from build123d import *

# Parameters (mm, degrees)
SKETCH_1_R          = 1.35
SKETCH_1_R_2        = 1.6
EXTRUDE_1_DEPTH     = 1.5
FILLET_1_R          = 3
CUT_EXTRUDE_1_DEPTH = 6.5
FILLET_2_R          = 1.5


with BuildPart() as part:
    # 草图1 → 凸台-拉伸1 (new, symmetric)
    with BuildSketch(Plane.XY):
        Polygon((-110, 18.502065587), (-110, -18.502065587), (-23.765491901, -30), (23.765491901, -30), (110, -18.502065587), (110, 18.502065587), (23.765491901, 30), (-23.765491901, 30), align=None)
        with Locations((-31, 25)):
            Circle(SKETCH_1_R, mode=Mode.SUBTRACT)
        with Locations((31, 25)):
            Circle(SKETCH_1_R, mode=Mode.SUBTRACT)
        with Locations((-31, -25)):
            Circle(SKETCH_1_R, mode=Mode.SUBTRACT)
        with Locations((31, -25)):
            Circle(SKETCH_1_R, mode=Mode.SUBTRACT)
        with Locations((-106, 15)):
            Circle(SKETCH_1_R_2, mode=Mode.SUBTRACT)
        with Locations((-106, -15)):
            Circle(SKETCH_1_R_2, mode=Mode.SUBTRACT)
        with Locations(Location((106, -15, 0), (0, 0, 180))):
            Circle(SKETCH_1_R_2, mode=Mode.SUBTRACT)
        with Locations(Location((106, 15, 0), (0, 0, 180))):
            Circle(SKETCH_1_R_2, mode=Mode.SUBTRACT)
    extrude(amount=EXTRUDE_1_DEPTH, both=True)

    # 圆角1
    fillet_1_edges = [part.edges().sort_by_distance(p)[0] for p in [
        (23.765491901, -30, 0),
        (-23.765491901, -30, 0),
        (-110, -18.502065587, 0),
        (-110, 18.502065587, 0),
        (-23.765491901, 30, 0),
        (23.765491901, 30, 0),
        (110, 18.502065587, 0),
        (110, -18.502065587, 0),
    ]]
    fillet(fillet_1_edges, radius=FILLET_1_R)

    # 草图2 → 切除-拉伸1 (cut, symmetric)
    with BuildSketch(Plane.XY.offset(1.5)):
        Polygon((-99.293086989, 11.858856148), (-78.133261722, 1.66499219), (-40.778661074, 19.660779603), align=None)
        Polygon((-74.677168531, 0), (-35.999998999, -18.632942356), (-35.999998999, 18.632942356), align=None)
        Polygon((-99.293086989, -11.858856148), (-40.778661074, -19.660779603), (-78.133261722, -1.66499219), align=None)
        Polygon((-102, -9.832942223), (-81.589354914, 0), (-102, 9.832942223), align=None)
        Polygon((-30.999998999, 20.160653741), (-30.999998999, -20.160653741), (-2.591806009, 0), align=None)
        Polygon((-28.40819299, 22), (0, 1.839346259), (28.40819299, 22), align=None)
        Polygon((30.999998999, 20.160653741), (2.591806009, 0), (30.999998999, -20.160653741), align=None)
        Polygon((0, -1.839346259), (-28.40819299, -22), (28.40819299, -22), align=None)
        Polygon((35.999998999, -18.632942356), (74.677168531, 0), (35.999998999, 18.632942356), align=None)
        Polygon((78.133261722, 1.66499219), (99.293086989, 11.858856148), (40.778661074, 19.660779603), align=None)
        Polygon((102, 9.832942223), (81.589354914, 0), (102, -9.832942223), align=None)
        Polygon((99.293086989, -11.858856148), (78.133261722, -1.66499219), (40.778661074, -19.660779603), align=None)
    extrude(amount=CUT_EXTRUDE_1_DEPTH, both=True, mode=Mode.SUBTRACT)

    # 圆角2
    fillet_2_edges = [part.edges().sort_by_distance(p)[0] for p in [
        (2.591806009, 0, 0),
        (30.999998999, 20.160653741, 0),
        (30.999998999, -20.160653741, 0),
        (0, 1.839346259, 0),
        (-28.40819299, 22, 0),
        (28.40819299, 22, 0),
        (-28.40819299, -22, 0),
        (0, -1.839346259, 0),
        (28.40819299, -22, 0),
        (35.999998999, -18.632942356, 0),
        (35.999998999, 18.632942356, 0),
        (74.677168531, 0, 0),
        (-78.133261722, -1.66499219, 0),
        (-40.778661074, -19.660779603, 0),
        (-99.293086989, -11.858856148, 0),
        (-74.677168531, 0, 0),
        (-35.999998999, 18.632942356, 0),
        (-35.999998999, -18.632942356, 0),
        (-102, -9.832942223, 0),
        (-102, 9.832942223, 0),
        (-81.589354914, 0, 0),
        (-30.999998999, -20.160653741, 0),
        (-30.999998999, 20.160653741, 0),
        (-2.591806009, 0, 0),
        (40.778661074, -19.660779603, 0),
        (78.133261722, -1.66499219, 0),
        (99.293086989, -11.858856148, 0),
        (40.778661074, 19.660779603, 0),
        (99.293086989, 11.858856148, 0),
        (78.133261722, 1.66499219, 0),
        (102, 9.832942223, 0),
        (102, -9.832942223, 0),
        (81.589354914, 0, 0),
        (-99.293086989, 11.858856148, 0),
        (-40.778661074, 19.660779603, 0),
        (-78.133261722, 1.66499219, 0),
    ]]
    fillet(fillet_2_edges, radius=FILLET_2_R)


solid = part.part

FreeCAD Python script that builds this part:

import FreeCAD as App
import Part
import Sketcher
Q = App.Units.Quantity


def edges_at(feature, points):
    """Names of the edges that pass closest to the given points."""
    edges = feature.Shape.Edges
    near = lambda p: min(range(len(edges)), key=lambda i: edges[i].distToShape(Part.Vertex(*p))[0])
    return sorted({f"Edge{near(p) + 1}" for p in points})

doc = App.newDocument("Part")
body = doc.addObject("PartDesign::Body", "Body")

# Sketch on XY plane
sketch1 = body.newObject("Sketcher::SketchObject", "Sketch")
sketch1.AttachmentSupport = (doc.getObject("XY_Plane"), [""])
sketch1.MapMode = "FlatFace"
sketch1.addGeometry(Part.LineSegment(App.Vector(-110, 18.502066, 0), App.Vector(-110, -18.502066, 0)), False)
sketch1.addGeometry(Part.LineSegment(App.Vector(-110, -18.502066, 0), App.Vector(-23.765492, -30, 0)), False)
sketch1.addGeometry(Part.LineSegment(App.Vector(-23.765492, -30, 0), App.Vector(23.765492, -30, 0)), False)
sketch1.addGeometry(Part.LineSegment(App.Vector(23.765492, -30, 0), App.Vector(110, -18.502066, 0)), False)
sketch1.addGeometry(Part.LineSegment(App.Vector(110, -18.502066, 0), App.Vector(110, 18.502066, 0)), False)
sketch1.addGeometry(Part.LineSegment(App.Vector(110, 18.502066, 0), App.Vector(23.765492, 30, 0)), False)
sketch1.addGeometry(Part.LineSegment(App.Vector(23.765492, 30, 0), App.Vector(-23.765492, 30, 0)), False)
sketch1.addGeometry(Part.LineSegment(App.Vector(-23.765492, 30, 0), App.Vector(-110, 18.502066, 0)), False)
sketch1.addGeometry(Part.Circle(App.Vector(-106, -15, 0), App.Vector(0, 0, 1), 1.6), False)
sketch1.addGeometry(Part.Circle(App.Vector(-31, -25, 0), App.Vector(0, 0, 1), 1.35), False)
sketch1.addGeometry(Part.Circle(App.Vector(31, -25, 0), App.Vector(0, 0, 1), 1.35), False)
sketch1.addGeometry(Part.Circle(App.Vector(106, -15, 0), App.Vector(0, 0, 1), 1.6), False)
sketch1.addGeometry(Part.Circle(App.Vector(-106, 15, 0), App.Vector(0, 0, 1), 1.6), False)
sketch1.addGeometry(Part.Circle(App.Vector(-31, 25, 0), App.Vector(0, 0, 1), 1.35), False)
sketch1.addGeometry(Part.Circle(App.Vector(31, 25, 0), App.Vector(0, 0, 1), 1.35), False)
sketch1.addGeometry(Part.Circle(App.Vector(106, 15, 0), App.Vector(0, 0, 1), 1.6), False)
sketch1.addConstraint(Sketcher.Constraint("Coincident", 0, 2, 1, 1))
sketch1.addConstraint(Sketcher.Constraint("Coincident", 1, 2, 2, 1))
sketch1.addConstraint(Sketcher.Constraint("Coincident", 2, 2, 3, 1))
sketch1.addConstraint(Sketcher.Constraint("Coincident", 3, 2, 4, 1))
sketch1.addConstraint(Sketcher.Constraint("Coincident", 4, 2, 5, 1))
sketch1.addConstraint(Sketcher.Constraint("Coincident", 5, 2, 6, 1))
sketch1.addConstraint(Sketcher.Constraint("Coincident", 6, 2, 7, 1))
sketch1.addConstraint(Sketcher.Constraint("Coincident", 7, 2, 0, 1))
sketch1.addConstraint(Sketcher.Constraint("Vertical", 0))
sketch1.addConstraint(Sketcher.Constraint("Horizontal", 2))
sketch1.addConstraint(Sketcher.Constraint("Vertical", 4))
sketch1.addConstraint(Sketcher.Constraint("Horizontal", 6))
sketch1.addConstraint(Sketcher.Constraint("Equal", 9, 10))
sketch1.addConstraint(Sketcher.Constraint("Equal", 8, 11))
sketch1.addConstraint(Sketcher.Constraint("Equal", 11, 12))
sketch1.addConstraint(Sketcher.Constraint("Equal", 10, 13))
sketch1.addConstraint(Sketcher.Constraint("Equal", 13, 14))
sketch1.addConstraint(Sketcher.Constraint("Equal", 12, 15))
sketch1.addConstraint(Sketcher.Constraint("Symmetric", 11, 3, 12, 3, -1, 1))
sketch1.addConstraint(Sketcher.Constraint("Symmetric", 10, 3, 13, 3, -1, 1))
sketch1.addConstraint(Sketcher.Constraint("Symmetric", 9, 3, 14, 3, -1, 1))
sketch1.addConstraint(Sketcher.Constraint("Symmetric", 8, 3, 15, 3, -1, 1))
sketch1.addConstraint(Sketcher.Constraint("Symmetric", 0, 2, 4, 2, -1, 1))
sketch1.addConstraint(Sketcher.Constraint("Symmetric", 1, 2, 5, 2, -1, 1))
sketch1.addConstraint(Sketcher.Constraint("Symmetric", 9, 3, 10, 3, -2))
sketch1.addConstraint(Sketcher.Constraint("Symmetric", 8, 3, 11, 3, -2))
sketch1.addConstraint(Sketcher.Constraint("Parallel", 3, 7))
sketch1.addConstraint(Sketcher.Constraint("Horizontal", 0, 2, 3, 2))
sketch1.addConstraint(Sketcher.Constraint("Horizontal", 4, 2, 7, 2))
sketch1.addConstraint(Sketcher.Constraint("Vertical", 2, 2, 5, 2))
sketch1.addConstraint(Sketcher.Constraint("Diameter", 8, Q("3.2 mm")))
sketch1.addConstraint(Sketcher.Constraint("Diameter", 9, Q("2.7 mm")))
sketch1.addConstraint(Sketcher.Constraint("DistanceX", 8, 3, -1, 1, Q("106 mm")))
sketch1.addConstraint(Sketcher.Constraint("DistanceY", 8, 3, -1, 1, Q("15 mm")))
sketch1.addConstraint(Sketcher.Constraint("DistanceX", 9, 3, -1, 1, Q("31 mm")))
sketch1.addConstraint(Sketcher.Constraint("DistanceY", 9, 3, -1, 1, Q("25 mm")))
sketch1.addConstraint(Sketcher.Constraint("DistanceX", 0, 2, -1, 1, Q("110 mm")))
sketch1.addConstraint(Sketcher.Constraint("DistanceY", 1, 2, -1, 1, Q("30 mm")))
sketch1.addConstraint(Sketcher.Constraint("DistanceY", 0, 2, 0, 1, Q("37.004131 mm")))
sketch1.addConstraint(Sketcher.Constraint("Distance", 1, Q("86.99766 mm")))
pad1 = body.newObject("PartDesign::Pad", "Pad")
pad1.Profile = sketch1
pad1.Length = 3
pad1.Midplane = True
doc.recompute()

fillet = body.newObject("PartDesign::Fillet", "Fillet")
fillet.Base = (pad1, edges_at(pad1, [
    (23.765, -30, 0),
    (-23.765, -30, 0),
    (-110, -18.502, 0),
    (-110, 18.502, 0),
    (-23.765, 30, 0),
    (23.765, 30, 0),
    (110, 18.502, 0),
    (110, -18.502, 0),
]))
fillet.Radius = 3

# Sketch on XY plane
sketch2 = body.newObject("Sketcher::SketchObject", "Sketch001")
sketch2.AttachmentSupport = (doc.getObject("XY_Plane"), [""])
sketch2.MapMode = "FlatFace"
sketch2.AttachmentOffset = App.Placement(App.Vector(0, 0, 1.5), App.Rotation())
sketch2.addGeometry(Part.LineSegment(App.Vector(-99.293087, 11.858856, 0), App.Vector(-78.133262, 1.664992, 0)), False)
sketch2.addGeometry(Part.LineSegment(App.Vector(-78.133262, 1.664992, 0), App.Vector(-40.778661, 19.66078, 0)), False)
sketch2.addGeometry(Part.LineSegment(App.Vector(-40.778661, 19.66078, 0), App.Vector(-99.293087, 11.858856, 0)), False)
sketch2.addGeometry(Part.LineSegment(App.Vector(-74.677169, 0, 0), App.Vector(-35.999999, -18.632942, 0)), False)
sketch2.addGeometry(Part.LineSegment(App.Vector(-35.999999, -18.632942, 0), App.Vector(-35.999999, 18.632942, 0)), False)
sketch2.addGeometry(Part.LineSegment(App.Vector(-35.999999, 18.632942, 0), App.Vector(-74.677169, 0, 0)), False)
sketch2.addGeometry(Part.LineSegment(App.Vector(-99.293087, -11.858856, 0), App.Vector(-40.778661, -19.66078, 0)), False)
sketch2.addGeometry(Part.LineSegment(App.Vector(-40.778661, -19.66078, 0), App.Vector(-78.133262, -1.664992, 0)), False)
sketch2.addGeometry(Part.LineSegment(App.Vector(-78.133262, -1.664992, 0), App.Vector(-99.293087, -11.858856, 0)), False)
sketch2.addGeometry(Part.LineSegment(App.Vector(-102, -9.832942, 0), App.Vector(-81.589355, 0, 0)), False)
sketch2.addGeometry(Part.LineSegment(App.Vector(-81.589355, 0, 0), App.Vector(-102, 9.832942, 0)), False)
sketch2.addGeometry(Part.LineSegment(App.Vector(-102, 9.832942, 0), App.Vector(-102, -9.832942, 0)), False)
sketch2.addGeometry(Part.LineSegment(App.Vector(-30.999999, 20.160654, 0), App.Vector(-30.999999, -20.160654, 0)), False)
sketch2.addGeometry(Part.LineSegment(App.Vector(-30.999999, -20.160654, 0), App.Vector(-2.591806, 0, 0)), False)
sketch2.addGeometry(Part.LineSegment(App.Vector(-2.591806, 0, 0), App.Vector(-30.999999, 20.160654, 0)), False)
sketch2.addGeometry(Part.LineSegment(App.Vector(-28.408193, 22, 0), App.Vector(0, 1.839346, 0)), False)
sketch2.addGeometry(Part.LineSegment(App.Vector(0, 1.839346, 0), App.Vector(28.408193, 22, 0)), False)
sketch2.addGeometry(Part.LineSegment(App.Vector(28.408193, 22, 0), App.Vector(-28.408193, 22, 0)), False)
sketch2.addGeometry(Part.LineSegment(App.Vector(30.999999, 20.160654, 0), App.Vector(2.591806, 0, 0)), False)
sketch2.addGeometry(Part.LineSegment(App.Vector(2.591806, 0, 0), App.Vector(30.999999, -20.160654, 0)), False)
sketch2.addGeometry(Part.LineSegment(App.Vector(30.999999, -20.160654, 0), App.Vector(30.999999, 20.160654, 0)), False)
sketch2.addGeometry(Part.LineSegment(App.Vector(0, -1.839346, 0), App.Vector(-28.408193, -22, 0)), False)
sketch2.addGeometry(Part.LineSegment(App.Vector(-28.408193, -22, 0), App.Vector(28.408193, -22, 0)), False)
sketch2.addGeometry(Part.LineSegment(App.Vector(28.408193, -22, 0), App.Vector(0, -1.839346, 0)), False)
sketch2.addGeometry(Part.LineSegment(App.Vector(35.999999, -18.632942, 0), App.Vector(74.677169, 0, 0)), False)
sketch2.addGeometry(Part.LineSegment(App.Vector(74.677169, 0, 0), App.Vector(35.999999, 18.632942, 0)), False)
sketch2.addGeometry(Part.LineSegment(App.Vector(35.999999, 18.632942, 0), App.Vector(35.999999, -18.632942, 0)), False)
sketch2.addGeometry(Part.LineSegment(App.Vector(78.133262, 1.664992, 0), App.Vector(99.293087, 11.858856, 0)), False)
sketch2.addGeometry(Part.LineSegment(App.Vector(99.293087, 11.858856, 0), App.Vector(40.778661, 19.66078, 0)), False)
sketch2.addGeometry(Part.LineSegment(App.Vector(40.778661, 19.66078, 0), App.Vector(78.133262, 1.664992, 0)), False)
sketch2.addGeometry(Part.LineSegment(App.Vector(102, 9.832942, 0), App.Vector(81.589355, 0, 0)), False)
sketch2.addGeometry(Part.LineSegment(App.Vector(81.589355, 0, 0), App.Vector(102, -9.832942, 0)), False)
sketch2.addGeometry(Part.LineSegment(App.Vector(102, -9.832942, 0), App.Vector(102, 9.832942, 0)), False)
sketch2.addGeometry(Part.LineSegment(App.Vector(99.293087, -11.858856, 0), App.Vector(78.133262, -1.664992, 0)), False)
sketch2.addGeometry(Part.LineSegment(App.Vector(78.133262, -1.664992, 0), App.Vector(40.778661, -19.66078, 0)), False)
sketch2.addGeometry(Part.LineSegment(App.Vector(40.778661, -19.66078, 0), App.Vector(99.293087, -11.858856, 0)), False)
sketch2.addConstraint(Sketcher.Constraint("Coincident", 0, 2, 1, 1))
sketch2.addConstraint(Sketcher.Constraint("Coincident", 1, 2, 2, 1))
sketch2.addConstraint(Sketcher.Constraint("Coincident", 2, 2, 0, 1))
sketch2.addConstraint(Sketcher.Constraint("Coincident", 3, 2, 4, 1))
sketch2.addConstraint(Sketcher.Constraint("Coincident", 4, 2, 5, 1))
sketch2.addConstraint(Sketcher.Constraint("Coincident", 5, 2, 3, 1))
sketch2.addConstraint(Sketcher.Constraint("Coincident", 6, 2, 7, 1))
sketch2.addConstraint(Sketcher.Constraint("Coincident", 7, 2, 8, 1))
sketch2.addConstraint(Sketcher.Constraint("Coincident", 8, 2, 6, 1))
sketch2.addConstraint(Sketcher.Constraint("Coincident", 9, 2, 10, 1))
sketch2.addConstraint(Sketcher.Constraint("Coincident", 10, 2, 11, 1))
sketch2.addConstraint(Sketcher.Constraint("Coincident", 11, 2, 9, 1))
sketch2.addConstraint(Sketcher.Constraint("Coincident", 12, 2, 13, 1))
sketch2.addConstraint(Sketcher.Constraint("Coincident", 13, 2, 14, 1))
sketch2.addConstraint(Sketcher.Constraint("Coincident", 14, 2, 12, 1))
sketch2.addConstraint(Sketcher.Constraint("Coincident", 15, 2, 16, 1))
sketch2.addConstraint(Sketcher.Constraint("Coincident", 16, 2, 17, 1))
sketch2.addConstraint(Sketcher.Constraint("Coincident", 17, 2, 15, 1))
sketch2.addConstraint(Sketcher.Constraint("Coincident", 18, 2, 19, 1))
sketch2.addConstraint(Sketcher.Constraint("Coincident", 19, 2, 20, 1))
sketch2.addConstraint(Sketcher.Constraint("Coincident", 20, 2, 18, 1))
sketch2.addConstraint(Sketcher.Constraint("Coincident", 21, 2, 22, 1))
sketch2.addConstraint(Sketcher.Constraint("Coincident", 22, 2, 23, 1))
sketch2.addConstraint(Sketcher.Constraint("Coincident", 23, 2, 21, 1))
sketch2.addConstraint(Sketcher.Constraint("Coincident", 24, 2, 25, 1))
sketch2.addConstraint(Sketcher.Constraint("Coincident", 25, 2, 26, 1))
sketch2.addConstraint(Sketcher.Constraint("Coincident", 26, 2, 24, 1))
sketch2.addConstraint(Sketcher.Constraint("Coincident", 27, 2, 28, 1))
sketch2.addConstraint(Sketcher.Constraint("Coincident", 28, 2, 29, 1))
sketch2.addConstraint(Sketcher.Constraint("Coincident", 29, 2, 27, 1))
sketch2.addConstraint(Sketcher.Constraint("Coincident", 30, 2, 31, 1))
sketch2.addConstraint(Sketcher.Constraint("Coincident", 31, 2, 32, 1))
sketch2.addConstraint(Sketcher.Constraint("Coincident", 32, 2, 30, 1))
sketch2.addConstraint(Sketcher.Constraint("Coincident", 33, 2, 34, 1))
sketch2.addConstraint(Sketcher.Constraint("Coincident", 34, 2, 35, 1))
sketch2.addConstraint(Sketcher.Constraint("Coincident", 35, 2, 33, 1))
sketch2.addConstraint(Sketcher.Constraint("Vertical", 4))
sketch2.addConstraint(Sketcher.Constraint("Vertical", 11))
sketch2.addConstraint(Sketcher.Constraint("Vertical", 12))
sketch2.addConstraint(Sketcher.Constraint("Horizontal", 17))
sketch2.addConstraint(Sketcher.Constraint("Vertical", 20))
sketch2.addConstraint(Sketcher.Constraint("Horizontal", 22))
sketch2.addConstraint(Sketcher.Constraint("Vertical", 26))
sketch2.addConstraint(Sketcher.Constraint("Vertical", 32))
sketch2.addConstraint(Sketcher.Constraint("Symmetric", 13, 2, 18, 2, -1, 1))
sketch2.addConstraint(Sketcher.Constraint("Symmetric", 14, 2, 19, 2, -1, 1))
sketch2.addConstraint(Sketcher.Constraint("Symmetric", 16, 2, 21, 2, -1, 1))
sketch2.addConstraint(Sketcher.Constraint("Symmetric", 15, 2, 23, 2, -1, 1))
sketch2.addConstraint(Sketcher.Constraint("Symmetric", 5, 2, 24, 2, -1, 1))
sketch2.addConstraint(Sketcher.Constraint("Symmetric", 3, 2, 25, 2, -1, 1))
sketch2.addConstraint(Sketcher.Constraint("Symmetric", 8, 2, 27, 2, -1, 1))
sketch2.addConstraint(Sketcher.Constraint("Symmetric", 6, 2, 28, 2, -1, 1))
sketch2.addConstraint(Sketcher.Constraint("Symmetric", 7, 2, 29, 2, -1, 1))
sketch2.addConstraint(Sketcher.Constraint("Symmetric", 9, 2, 30, 2, -1, 1))
sketch2.addConstraint(Sketcher.Constraint("Symmetric", 10, 2, 31, 2, -1, 1))
sketch2.addConstraint(Sketcher.Constraint("Symmetric", 0, 2, 33, 2, -1, 1))
sketch2.addConstraint(Sketcher.Constraint("Symmetric", 1, 2, 34, 2, -1, 1))
sketch2.addConstraint(Sketcher.Constraint("Symmetric", 2, 2, 35, 2, -1, 1))
sketch2.addConstraint(Sketcher.Constraint("Symmetric", 2, 2, 27, 2, -2))
sketch2.addConstraint(Sketcher.Constraint("Symmetric", 1, 2, 28, 2, -2))
sketch2.addConstraint(Sketcher.Constraint("Symmetric", 0, 2, 29, 2, -2))
sketch2.addConstraint(Sketcher.Constraint("PointOnObject", 5, 2, -1))
sketch2.addConstraint(Sketcher.Constraint("PointOnObject", 9, 2, -1))
sketch2.addConstraint(Sketcher.Constraint("PointOnObject", 13, 2, -1))
sketch2.addConstraint(Sketcher.Constraint("PointOnObject", 15, 2, -2))
sketch2.addConstraint(Sketcher.Constraint("Parallel", 0, 3))
sketch2.addConstraint(Sketcher.Constraint("Parallel", 1, 5))
sketch2.addConstraint(Sketcher.Constraint("Parallel", 3, 7))
sketch2.addConstraint(Sketcher.Constraint("Parallel", 8, 9))
sketch2.addConstraint(Sketcher.Constraint("Parallel", 7, 10))
sketch2.addConstraint(Sketcher.Constraint("Parallel", 14, 15))
sketch2.addConstraint(Sketcher.Constraint("Parallel", 13, 16))
sketch2.addConstraint(Sketcher.Constraint("Parallel", 16, 18))
sketch2.addConstraint(Sketcher.Constraint("Parallel", 19, 23))
sketch2.addConstraint(Sketcher.Constraint("Parallel", 9, 24))
sketch2.addConstraint(Sketcher.Constraint("Parallel", 27, 30))
sketch2.addConstraint(Sketcher.Constraint("Horizontal", 12, 2, 19, 2))
sketch2.addConstraint(Sketcher.Constraint("Equal", 14, 15))
sketch2.addConstraint(Sketcher.Constraint("DistanceX", 3, 2, -1, 1, Q("35.999999 mm")))
sketch2.addConstraint(Sketcher.Constraint("DistanceX", 10, 2, -1, 1, Q("102 mm")))
sketch2.addConstraint(Sketcher.Constraint("DistanceX", 12, 2, -1, 1, Q("30.999999 mm")))
sketch2.addConstraint(Sketcher.Constraint("DistanceY", -1, 1, 16, 2, Q("22 mm")))
sketch2.addConstraint(Sketcher.Constraint("DistanceY", 26, 2, 31, 2, Q("8.8 mm")))
sketch2.addConstraint(Sketcher.Constraint("DistanceX", 0, 2, 1, 2, Q("37.354601 mm")))
sketch2.addConstraint(Sketcher.Constraint("DistanceY", 3, 2, 2, 2, Q("30.491799 mm")))
sketch2.addConstraint(Sketcher.Constraint("Distance", 9, Q("22.65571 mm")))
sketch2.addConstraint(Sketcher.Constraint("DistanceX", 17, 2, 17, 1, Q("56.816386 mm")))
sketch2.addConstraint(Sketcher.Constraint("DistanceY", 4, 1, 4, 2, Q("37.265885 mm")))
sketch2.addConstraint(Sketcher.Constraint("DistanceY", 12, 2, 12, 1, Q("40.321307 mm")))
sketch2.addConstraint(Sketcher.Constraint("DistanceX", 0, 2, -1, 1, Q("78.133262 mm")))
sketch2.addConstraint(Sketcher.Constraint("DistanceY", -1, 1, 1, 2, Q("19.66078 mm")))
pocket1 = body.newObject("PartDesign::Pocket", "Pocket")
pocket1.Profile = sketch2
pocket1.Length = 13
pocket1.Midplane = True
doc.recompute()

fillet2 = body.newObject("PartDesign::Fillet", "Fillet001")
fillet2.Base = (pocket1, edges_at(pocket1, [
    (2.592, 0, 0),
    (31, 20.161, 0),
    (31, -20.161, 0),
    (0, 1.839, 0),
    (-28.408, 22, 0),
    (28.408, 22, 0),
    (-28.408, -22, 0),
    (0, -1.839, 0),
    (28.408, -22, 0),
    (36, -18.633, 0),
    (36, 18.633, 0),
    (74.677, 0, 0),
    (-78.133, -1.665, 0),
    (-40.779, -19.661, 0),
    (-99.293, -11.859, 0),
    (-74.677, 0, 0),
    (-36, 18.633, 0),
    (-36, -18.633, 0),
    (-102, -9.833, 0),
    (-102, 9.833, 0),
    (-81.589, 0, 0),
    (-31, -20.161, 0),
    (-31, 20.161, 0),
    (-2.592, 0, 0),
    (40.779, -19.661, 0),
    (78.133, -1.665, 0),
    (99.293, -11.859, 0),
    (40.779, 19.661, 0),
    (99.293, 11.859, 0),
    (78.133, 1.665, 0),
    (102, 9.833, 0),
    (102, -9.833, 0),
    (81.589, 0, 0),
    (-99.293, 11.859, 0),
    (-40.779, 19.661, 0),
    (-78.133, 1.665, 0),
]))
fillet2.Radius = 1.5

doc.recompute()
